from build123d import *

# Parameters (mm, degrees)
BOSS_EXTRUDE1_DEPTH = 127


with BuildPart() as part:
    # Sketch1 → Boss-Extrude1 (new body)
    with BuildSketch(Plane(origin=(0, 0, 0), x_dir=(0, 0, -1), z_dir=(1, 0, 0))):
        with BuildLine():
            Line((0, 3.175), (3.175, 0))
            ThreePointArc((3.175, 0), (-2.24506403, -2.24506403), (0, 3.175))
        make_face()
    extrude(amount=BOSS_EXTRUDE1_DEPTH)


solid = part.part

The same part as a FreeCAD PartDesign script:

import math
import FreeCAD as App
import Part
import Sketcher
from FreeCAD import Vector
Q = App.Units.Quantity

doc = App.newDocument("Part")
params = doc.addObject("Spreadsheet::Sheet", "Params")
for row, (alias, value) in enumerate([
    ("sketch1_radius", "0.125 in"),
    ("pad1_length", "5 in"),
], start=1):
    params.set(f"A{row}", alias)
    params.set(f"B{row}", "=" + value)
    params.setAlias(f"B{row}", alias)

body = doc.addObject("PartDesign::Body", "Body")

sketch1 = body.newObject("Sketcher::SketchObject", "Sketch")
sketch1.AttachmentSupport = (doc.getObject("YZ_Plane"), [""])
sketch1.MapMode = "FlatFace"
sketch1.addGeometry(Part.LineSegment(Vector(0, -3.2, 0), Vector(3.2, 0, 0)), False)
sketch1.addGeometry(Part.ArcOfCircle(Part.Circle(Vector(0, 0, 0), Vector(0, 0, 1), 3.2), math.radians(0), math.radians(270)), False)
sketch1.addConstraint(Sketcher.Constraint("Coincident", 0, 1, 1, 2))
sketch1.addConstraint(Sketcher.Constraint("Coincident", 1, 1, 0, 2))
sketch1.addConstraint(Sketcher.Constraint("Coincident", 1, 3, -1, 1))
sketch1.addConstraint(Sketcher.Constraint("PointOnObject", 0, 1, -2))
sketch1.addConstraint(Sketcher.Constraint("PointOnObject", 1, 1, -1))
sketch1.addConstraint(Sketcher.Constraint("Radius", 1, Q("0.125 in")))
sketch1.setExpression("Constraints[5]", "Params.sketch1_radius")
pad1 = body.newObject("PartDesign::Pad", "Pad")
pad1.Profile = sketch1
pad1.setExpression("Length", "Params.pad1_length")

doc.recompute()
